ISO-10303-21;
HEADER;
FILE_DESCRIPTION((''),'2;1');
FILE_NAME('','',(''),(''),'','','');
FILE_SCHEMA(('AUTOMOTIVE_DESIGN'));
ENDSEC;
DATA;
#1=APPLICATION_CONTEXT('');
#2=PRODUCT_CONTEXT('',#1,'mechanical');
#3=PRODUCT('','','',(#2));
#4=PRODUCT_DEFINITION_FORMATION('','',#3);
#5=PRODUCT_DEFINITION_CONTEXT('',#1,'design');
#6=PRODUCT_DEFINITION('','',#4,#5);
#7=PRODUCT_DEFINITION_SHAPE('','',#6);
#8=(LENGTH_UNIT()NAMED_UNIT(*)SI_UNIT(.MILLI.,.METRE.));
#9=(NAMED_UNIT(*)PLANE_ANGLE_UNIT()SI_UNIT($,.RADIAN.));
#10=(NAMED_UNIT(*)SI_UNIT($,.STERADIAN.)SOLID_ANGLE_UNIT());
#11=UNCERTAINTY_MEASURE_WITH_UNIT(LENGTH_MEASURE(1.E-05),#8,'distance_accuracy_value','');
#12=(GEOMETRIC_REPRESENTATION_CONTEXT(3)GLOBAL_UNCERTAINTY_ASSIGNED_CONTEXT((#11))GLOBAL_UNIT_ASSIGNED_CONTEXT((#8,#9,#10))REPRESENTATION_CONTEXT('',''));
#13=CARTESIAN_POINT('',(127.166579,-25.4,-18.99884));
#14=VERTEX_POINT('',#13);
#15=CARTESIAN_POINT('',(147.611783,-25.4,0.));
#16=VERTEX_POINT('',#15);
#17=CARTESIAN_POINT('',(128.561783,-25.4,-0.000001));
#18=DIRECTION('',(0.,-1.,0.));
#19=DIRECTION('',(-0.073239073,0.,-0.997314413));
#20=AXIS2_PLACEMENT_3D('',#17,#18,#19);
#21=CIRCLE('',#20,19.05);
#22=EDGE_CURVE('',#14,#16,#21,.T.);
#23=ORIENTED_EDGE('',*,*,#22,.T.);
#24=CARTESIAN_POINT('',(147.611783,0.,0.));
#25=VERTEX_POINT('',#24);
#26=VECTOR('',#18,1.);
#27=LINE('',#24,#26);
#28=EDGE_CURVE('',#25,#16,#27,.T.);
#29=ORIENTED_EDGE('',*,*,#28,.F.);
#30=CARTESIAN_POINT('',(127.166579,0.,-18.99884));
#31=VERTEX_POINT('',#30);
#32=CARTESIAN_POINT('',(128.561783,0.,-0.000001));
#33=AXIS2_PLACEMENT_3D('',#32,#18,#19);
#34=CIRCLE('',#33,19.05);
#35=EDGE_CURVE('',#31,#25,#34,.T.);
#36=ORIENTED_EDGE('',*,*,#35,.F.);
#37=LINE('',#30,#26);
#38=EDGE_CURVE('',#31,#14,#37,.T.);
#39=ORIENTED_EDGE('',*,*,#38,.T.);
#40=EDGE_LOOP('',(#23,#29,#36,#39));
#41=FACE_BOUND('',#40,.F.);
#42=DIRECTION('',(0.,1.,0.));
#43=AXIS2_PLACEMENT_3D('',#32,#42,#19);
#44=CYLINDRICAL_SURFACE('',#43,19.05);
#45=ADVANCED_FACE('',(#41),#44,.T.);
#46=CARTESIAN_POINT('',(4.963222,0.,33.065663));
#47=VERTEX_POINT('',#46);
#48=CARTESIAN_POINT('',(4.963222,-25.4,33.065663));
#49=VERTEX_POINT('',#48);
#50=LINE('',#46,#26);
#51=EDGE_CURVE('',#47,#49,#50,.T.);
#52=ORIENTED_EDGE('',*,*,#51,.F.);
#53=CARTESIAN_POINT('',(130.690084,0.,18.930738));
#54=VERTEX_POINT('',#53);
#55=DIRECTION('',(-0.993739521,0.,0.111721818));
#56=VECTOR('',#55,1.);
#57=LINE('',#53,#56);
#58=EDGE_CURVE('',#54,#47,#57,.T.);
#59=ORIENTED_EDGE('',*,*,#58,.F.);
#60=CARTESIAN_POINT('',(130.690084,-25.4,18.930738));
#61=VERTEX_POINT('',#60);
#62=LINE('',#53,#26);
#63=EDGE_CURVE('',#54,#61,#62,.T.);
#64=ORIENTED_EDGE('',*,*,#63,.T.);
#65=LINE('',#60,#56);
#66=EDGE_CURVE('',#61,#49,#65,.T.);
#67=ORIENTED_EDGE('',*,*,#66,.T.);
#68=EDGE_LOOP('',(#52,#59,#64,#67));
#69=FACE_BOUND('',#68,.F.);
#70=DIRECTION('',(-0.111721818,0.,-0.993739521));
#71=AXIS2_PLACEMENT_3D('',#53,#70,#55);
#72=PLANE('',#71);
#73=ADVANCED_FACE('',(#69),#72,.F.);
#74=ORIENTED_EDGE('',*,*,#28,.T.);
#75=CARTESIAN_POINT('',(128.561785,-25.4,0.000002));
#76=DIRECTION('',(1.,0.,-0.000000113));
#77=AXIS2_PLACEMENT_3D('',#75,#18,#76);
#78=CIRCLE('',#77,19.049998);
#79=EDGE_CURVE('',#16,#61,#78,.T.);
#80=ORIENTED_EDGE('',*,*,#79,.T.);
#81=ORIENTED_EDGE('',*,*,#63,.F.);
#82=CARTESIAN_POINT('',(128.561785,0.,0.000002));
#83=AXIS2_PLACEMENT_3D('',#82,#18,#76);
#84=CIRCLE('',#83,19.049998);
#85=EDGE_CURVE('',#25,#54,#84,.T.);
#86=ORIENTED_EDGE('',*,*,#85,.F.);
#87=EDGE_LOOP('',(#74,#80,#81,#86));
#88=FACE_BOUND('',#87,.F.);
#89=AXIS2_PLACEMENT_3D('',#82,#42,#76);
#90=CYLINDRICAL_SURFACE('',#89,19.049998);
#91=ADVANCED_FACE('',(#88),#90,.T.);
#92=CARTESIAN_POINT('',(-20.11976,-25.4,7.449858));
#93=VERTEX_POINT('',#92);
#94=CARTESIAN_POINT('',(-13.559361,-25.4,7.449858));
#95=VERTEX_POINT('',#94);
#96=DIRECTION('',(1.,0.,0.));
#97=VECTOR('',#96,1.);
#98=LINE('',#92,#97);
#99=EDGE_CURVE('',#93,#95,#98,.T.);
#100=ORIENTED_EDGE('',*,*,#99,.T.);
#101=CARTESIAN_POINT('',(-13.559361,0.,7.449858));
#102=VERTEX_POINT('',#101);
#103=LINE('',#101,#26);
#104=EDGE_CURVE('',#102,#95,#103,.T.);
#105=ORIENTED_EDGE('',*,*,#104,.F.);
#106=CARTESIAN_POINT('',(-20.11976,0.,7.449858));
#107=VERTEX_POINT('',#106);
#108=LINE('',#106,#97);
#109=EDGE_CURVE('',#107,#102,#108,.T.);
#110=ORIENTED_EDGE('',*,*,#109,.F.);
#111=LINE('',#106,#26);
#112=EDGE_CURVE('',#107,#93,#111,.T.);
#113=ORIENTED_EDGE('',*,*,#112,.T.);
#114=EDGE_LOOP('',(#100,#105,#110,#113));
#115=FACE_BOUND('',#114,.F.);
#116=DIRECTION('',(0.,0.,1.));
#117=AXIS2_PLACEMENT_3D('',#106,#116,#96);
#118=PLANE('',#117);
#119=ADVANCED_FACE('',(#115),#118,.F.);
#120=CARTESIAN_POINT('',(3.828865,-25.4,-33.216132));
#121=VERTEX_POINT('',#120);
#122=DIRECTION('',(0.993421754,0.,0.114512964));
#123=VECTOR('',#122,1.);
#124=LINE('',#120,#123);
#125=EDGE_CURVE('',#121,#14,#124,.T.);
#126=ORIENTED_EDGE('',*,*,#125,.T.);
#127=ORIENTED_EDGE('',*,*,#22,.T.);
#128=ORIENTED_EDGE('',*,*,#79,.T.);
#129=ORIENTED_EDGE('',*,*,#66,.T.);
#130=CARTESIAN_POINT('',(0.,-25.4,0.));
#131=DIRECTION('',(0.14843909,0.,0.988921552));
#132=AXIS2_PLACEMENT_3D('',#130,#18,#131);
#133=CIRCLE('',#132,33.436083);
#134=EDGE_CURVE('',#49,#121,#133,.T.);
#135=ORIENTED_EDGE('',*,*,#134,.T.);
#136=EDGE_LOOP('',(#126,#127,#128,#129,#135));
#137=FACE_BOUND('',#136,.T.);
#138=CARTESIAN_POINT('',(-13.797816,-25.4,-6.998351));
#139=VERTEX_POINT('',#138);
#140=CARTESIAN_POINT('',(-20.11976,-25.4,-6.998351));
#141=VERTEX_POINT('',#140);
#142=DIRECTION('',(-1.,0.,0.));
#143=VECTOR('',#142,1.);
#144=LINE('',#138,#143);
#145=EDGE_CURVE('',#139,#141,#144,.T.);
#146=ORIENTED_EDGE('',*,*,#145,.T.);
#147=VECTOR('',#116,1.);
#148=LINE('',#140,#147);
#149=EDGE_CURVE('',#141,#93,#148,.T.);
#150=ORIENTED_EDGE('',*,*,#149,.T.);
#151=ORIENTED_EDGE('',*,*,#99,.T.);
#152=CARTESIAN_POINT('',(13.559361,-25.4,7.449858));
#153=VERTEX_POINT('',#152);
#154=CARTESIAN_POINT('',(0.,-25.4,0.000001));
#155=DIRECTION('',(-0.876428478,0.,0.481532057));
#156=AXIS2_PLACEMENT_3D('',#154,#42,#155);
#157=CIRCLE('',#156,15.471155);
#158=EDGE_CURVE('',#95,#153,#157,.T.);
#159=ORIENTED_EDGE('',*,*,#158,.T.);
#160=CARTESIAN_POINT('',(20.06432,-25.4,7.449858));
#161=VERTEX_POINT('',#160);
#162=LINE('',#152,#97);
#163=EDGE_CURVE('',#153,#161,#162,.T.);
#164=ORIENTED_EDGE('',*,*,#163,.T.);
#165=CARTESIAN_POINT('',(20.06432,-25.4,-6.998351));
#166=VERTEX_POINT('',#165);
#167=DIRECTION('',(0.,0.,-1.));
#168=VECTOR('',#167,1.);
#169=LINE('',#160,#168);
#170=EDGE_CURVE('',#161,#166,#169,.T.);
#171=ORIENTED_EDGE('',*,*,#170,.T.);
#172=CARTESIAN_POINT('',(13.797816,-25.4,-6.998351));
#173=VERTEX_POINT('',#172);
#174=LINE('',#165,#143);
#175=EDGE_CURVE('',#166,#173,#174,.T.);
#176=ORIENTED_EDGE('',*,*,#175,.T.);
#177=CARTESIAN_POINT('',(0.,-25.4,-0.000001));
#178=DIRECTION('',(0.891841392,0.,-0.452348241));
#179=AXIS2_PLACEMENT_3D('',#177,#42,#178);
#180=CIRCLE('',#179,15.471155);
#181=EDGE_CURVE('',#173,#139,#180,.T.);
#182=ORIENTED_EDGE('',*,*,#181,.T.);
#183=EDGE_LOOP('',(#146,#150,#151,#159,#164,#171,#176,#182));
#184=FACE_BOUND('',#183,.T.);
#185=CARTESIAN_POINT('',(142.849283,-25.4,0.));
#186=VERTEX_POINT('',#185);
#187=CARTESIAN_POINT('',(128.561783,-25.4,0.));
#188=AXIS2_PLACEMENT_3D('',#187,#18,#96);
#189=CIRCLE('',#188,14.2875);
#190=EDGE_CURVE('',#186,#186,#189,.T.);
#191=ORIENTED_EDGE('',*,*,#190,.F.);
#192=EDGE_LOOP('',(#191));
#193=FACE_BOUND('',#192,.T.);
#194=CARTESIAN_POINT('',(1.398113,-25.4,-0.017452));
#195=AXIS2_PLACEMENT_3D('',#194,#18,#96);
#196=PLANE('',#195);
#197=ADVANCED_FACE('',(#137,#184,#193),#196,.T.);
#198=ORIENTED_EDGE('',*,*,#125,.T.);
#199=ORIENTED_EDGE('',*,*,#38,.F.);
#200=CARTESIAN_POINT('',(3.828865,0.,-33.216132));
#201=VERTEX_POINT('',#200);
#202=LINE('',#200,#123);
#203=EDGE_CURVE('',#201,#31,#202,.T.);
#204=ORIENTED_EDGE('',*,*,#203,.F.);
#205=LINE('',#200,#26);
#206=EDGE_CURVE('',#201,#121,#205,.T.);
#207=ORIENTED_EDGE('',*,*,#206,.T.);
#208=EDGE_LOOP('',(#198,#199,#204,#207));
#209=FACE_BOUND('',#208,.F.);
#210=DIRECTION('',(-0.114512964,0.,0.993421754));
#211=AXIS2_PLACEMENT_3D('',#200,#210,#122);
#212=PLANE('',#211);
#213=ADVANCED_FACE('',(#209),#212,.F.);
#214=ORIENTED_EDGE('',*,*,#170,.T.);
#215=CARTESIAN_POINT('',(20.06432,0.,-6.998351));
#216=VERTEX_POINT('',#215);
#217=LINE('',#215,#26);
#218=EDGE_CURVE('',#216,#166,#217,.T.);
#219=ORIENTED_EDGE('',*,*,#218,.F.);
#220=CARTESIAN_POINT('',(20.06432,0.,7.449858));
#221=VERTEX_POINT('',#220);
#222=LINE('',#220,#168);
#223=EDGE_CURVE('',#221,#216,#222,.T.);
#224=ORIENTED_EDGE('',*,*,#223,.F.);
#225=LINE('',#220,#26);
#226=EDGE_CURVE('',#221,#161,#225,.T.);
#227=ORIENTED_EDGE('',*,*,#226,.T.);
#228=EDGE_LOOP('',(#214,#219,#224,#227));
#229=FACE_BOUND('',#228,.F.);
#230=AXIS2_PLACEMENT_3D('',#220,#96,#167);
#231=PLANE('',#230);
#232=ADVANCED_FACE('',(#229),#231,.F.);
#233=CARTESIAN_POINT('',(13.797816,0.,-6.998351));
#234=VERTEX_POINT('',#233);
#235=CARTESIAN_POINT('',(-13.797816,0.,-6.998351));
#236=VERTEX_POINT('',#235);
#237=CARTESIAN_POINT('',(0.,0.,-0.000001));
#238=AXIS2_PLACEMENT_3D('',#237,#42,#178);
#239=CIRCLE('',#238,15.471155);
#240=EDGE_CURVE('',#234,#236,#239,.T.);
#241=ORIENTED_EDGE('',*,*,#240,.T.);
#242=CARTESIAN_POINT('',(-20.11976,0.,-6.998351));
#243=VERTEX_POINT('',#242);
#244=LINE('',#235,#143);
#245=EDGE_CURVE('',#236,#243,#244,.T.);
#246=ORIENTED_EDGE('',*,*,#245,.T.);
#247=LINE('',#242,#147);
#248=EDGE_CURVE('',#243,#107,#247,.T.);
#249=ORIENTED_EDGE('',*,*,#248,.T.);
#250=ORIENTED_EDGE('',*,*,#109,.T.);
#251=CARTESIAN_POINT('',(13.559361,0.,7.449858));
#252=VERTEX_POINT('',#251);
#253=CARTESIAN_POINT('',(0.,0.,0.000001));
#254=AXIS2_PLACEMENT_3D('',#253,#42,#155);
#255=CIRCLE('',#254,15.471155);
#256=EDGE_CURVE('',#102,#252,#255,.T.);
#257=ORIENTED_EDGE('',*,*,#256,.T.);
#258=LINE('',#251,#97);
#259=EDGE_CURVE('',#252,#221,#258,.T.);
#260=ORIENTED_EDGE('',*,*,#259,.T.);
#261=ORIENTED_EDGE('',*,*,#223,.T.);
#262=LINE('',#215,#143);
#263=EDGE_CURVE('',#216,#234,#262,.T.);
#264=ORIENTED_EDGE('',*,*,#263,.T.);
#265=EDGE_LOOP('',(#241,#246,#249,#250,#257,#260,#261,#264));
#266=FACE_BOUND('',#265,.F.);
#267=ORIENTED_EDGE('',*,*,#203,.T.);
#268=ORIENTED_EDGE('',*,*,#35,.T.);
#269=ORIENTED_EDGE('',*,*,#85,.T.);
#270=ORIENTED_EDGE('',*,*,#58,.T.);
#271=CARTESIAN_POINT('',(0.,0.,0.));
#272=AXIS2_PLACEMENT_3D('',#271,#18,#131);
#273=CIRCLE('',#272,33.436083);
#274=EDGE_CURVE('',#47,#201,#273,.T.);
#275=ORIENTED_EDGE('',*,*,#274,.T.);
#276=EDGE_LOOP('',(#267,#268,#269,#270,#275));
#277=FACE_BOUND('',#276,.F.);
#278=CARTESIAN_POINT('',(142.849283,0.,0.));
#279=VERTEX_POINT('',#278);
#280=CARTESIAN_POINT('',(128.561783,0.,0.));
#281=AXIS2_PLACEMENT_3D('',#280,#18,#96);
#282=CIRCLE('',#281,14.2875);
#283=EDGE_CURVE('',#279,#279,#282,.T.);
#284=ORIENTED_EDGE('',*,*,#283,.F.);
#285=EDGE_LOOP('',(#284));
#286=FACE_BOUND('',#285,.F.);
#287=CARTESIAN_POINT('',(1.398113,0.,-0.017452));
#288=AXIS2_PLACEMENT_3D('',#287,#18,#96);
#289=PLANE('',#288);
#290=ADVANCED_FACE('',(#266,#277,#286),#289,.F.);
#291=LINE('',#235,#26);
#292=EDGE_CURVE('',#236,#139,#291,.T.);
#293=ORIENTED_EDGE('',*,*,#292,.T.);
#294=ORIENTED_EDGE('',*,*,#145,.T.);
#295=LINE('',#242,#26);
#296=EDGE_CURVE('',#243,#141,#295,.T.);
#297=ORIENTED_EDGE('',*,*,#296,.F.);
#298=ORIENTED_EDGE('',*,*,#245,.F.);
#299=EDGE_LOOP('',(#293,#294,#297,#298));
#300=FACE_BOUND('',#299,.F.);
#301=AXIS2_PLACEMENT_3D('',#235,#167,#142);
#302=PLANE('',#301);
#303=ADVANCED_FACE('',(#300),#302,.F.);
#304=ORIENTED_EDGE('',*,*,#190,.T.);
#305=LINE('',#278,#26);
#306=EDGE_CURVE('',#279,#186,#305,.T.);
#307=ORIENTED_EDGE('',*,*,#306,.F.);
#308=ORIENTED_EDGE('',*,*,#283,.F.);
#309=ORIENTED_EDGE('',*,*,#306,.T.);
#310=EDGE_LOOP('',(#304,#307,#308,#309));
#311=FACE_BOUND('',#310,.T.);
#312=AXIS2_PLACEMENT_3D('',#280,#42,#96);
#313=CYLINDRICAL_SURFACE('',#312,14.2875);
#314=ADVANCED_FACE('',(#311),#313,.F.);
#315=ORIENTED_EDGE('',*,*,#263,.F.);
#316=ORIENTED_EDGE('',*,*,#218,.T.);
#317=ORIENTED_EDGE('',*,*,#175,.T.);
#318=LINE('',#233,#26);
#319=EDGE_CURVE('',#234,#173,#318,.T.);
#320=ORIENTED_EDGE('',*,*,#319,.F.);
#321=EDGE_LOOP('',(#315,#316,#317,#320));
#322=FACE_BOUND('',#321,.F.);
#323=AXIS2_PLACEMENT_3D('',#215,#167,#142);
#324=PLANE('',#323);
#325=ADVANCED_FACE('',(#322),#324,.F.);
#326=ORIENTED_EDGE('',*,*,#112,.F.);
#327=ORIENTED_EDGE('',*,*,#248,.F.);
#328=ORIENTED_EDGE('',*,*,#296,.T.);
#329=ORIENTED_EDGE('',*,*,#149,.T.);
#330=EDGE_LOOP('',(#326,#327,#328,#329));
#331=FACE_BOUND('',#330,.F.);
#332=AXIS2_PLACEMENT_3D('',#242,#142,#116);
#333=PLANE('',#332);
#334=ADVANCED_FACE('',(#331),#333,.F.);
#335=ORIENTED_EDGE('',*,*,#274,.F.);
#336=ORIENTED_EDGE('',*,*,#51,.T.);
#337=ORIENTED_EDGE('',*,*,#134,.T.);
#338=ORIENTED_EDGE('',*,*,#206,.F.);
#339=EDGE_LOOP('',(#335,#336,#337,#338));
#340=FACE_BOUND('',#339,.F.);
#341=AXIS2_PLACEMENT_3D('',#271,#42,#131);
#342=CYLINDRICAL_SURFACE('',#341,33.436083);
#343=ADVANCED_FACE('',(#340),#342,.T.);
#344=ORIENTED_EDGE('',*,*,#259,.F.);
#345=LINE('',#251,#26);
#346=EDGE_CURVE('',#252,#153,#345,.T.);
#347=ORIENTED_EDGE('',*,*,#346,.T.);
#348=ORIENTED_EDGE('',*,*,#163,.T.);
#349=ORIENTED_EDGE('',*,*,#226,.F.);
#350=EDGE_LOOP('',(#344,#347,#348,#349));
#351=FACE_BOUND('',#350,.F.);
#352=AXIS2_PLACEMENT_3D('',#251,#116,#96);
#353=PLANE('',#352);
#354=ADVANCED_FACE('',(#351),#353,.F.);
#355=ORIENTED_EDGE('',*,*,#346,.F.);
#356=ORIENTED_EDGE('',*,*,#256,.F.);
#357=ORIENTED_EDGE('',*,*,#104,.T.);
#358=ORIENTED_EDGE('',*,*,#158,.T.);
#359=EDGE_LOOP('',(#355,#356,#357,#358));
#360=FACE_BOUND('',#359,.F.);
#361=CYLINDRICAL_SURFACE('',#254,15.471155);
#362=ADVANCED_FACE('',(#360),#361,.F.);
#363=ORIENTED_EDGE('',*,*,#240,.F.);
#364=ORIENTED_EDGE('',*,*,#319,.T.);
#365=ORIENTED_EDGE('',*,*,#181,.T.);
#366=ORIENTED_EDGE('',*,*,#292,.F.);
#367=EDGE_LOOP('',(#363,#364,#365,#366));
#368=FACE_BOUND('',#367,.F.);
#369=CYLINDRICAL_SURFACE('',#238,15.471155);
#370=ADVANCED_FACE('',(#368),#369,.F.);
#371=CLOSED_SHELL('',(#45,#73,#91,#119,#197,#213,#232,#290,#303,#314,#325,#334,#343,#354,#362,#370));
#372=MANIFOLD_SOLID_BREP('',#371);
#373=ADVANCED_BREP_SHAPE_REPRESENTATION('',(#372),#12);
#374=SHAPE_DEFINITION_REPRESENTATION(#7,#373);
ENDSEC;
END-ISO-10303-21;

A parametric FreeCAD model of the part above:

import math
import FreeCAD as App
import Part
import Sketcher
Q = App.Units.Quantity

doc = App.newDocument("Part")
body = doc.addObject("PartDesign::Body", "Body")

# Sketch on XZ plane
sketch1 = doc.addObject("Sketcher::SketchObject", "Sketch")
body.addObject(sketch1)
sketch1.AttachmentSupport = (doc.XZ_Plane, [""])
sketch1.MapMode = "FlatFace"
sketch1.addGeometry([
    Part.ArcOfCircle(Part.Circle(App.Vector(0, 0, 0), App.Vector(0, 0, 1), 33.436083), math.radians(81.46352), math.radians(276.575534)),  # 0
    Part.LineSegment(App.Vector(3.828865, -33.216132, 0), App.Vector(127.166579, -18.99884, 0)),  # 1
    Part.ArcOfCircle(Part.Circle(App.Vector(128.561783, -0.000001, 0), App.Vector(0, 0, 1), 19.05), math.radians(-94.20005), math.radians(0.000002)),  # 2
    Part.ArcOfCircle(Part.Circle(App.Vector(128.561785, 0.000002, 0), App.Vector(0, 0, 1), 19.049998), math.radians(-0.000006), math.radians(83.585424)),  # 3
    Part.LineSegment(App.Vector(130.690084, 18.930738, 0), App.Vector(4.963222, 33.065663, 0)),  # 4
    Part.LineSegment(App.Vector(-20.11976, 7.449858, 0), App.Vector(-13.559361, 7.449858, 0)),  # 5
    Part.ArcOfCircle(Part.Circle(App.Vector(0, 0.000001, 0), App.Vector(0, 0, 1), 15.471155), math.radians(28.785511), math.radians(151.214489)),  # 6
    Part.LineSegment(App.Vector(13.559361, 7.449858, 0), App.Vector(20.06432, 7.449858, 0)),  # 7
    Part.LineSegment(App.Vector(20.06432, 7.449858, 0), App.Vector(20.06432, -6.998351, 0)),  # 8
    Part.LineSegment(App.Vector(20.06432, -6.998351, 0), App.Vector(13.797816, -6.998351, 0)),  # 9
    Part.ArcOfCircle(Part.Circle(App.Vector(0, -0.000001, 0), App.Vector(0, 0, 1), 15.471155), math.radians(-153.105555), math.radians(-26.894445)),  # 10
    Part.LineSegment(App.Vector(-13.797816, -6.998351, 0), App.Vector(-20.11976, -6.998351, 0)),  # 11
    Part.LineSegment(App.Vector(-20.11976, -6.998351, 0), App.Vector(-20.11976, 7.449858, 0)),  # 12
    Part.Circle(App.Vector(128.561783, 0, 0), App.Vector(0, 0, 1), 14.2875),  # 13
], False)
sketch1.addConstraint([
    Sketcher.Constraint("Tangent", 0, 2, 1, 1),
    Sketcher.Constraint("Coincident", 1, 2, 2, 1),
    Sketcher.Constraint("Tangent", 2, 2, 3, 1),
    Sketcher.Constraint("Tangent", 3, 2, 4, 1),
    Sketcher.Constraint("Coincident", 4, 2, 0, 1),
    Sketcher.Constraint("Coincident", 5, 2, 6, 2),
    Sketcher.Constraint("Coincident", 6, 1, 7, 1),
    Sketcher.Constraint("Coincident", 7, 2, 8, 1),
    Sketcher.Constraint("Coincident", 8, 2, 9, 1),
    Sketcher.Constraint("Coincident", 9, 2, 10, 2),
    Sketcher.Constraint("Coincident", 10, 1, 11, 1),
    Sketcher.Constraint("Coincident", 11, 2, 12, 1),
    Sketcher.Constraint("Coincident", 12, 2, 5, 1),
    Sketcher.Constraint("Horizontal", 5),
    Sketcher.Constraint("Horizontal", 7),
    Sketcher.Constraint("Vertical", 8),
    Sketcher.Constraint("Horizontal", 9),
    Sketcher.Constraint("Horizontal", 11),
    Sketcher.Constraint("Vertical", 12),
    Sketcher.Constraint("Coincident", 0, 3, -1, 1),
    Sketcher.Constraint("Coincident", 6, 3, -1, 1),
    Sketcher.Constraint("Coincident", 10, 3, -1, 1),
    Sketcher.Constraint("Coincident", 13, 3, 2, 3),
    Sketcher.Constraint("Equal", 2, 3),
    Sketcher.Constraint("Equal", 6, 10),
    Sketcher.Constraint("PointOnObject", 2, 3, -1),
    Sketcher.Constraint("PointOnObject", 2, 2, -1),
    Sketcher.Constraint("Horizontal", 5, 2, 6, 1),
    Sketcher.Constraint("Horizontal", 9, 2, 10, 1),
    Sketcher.Constraint("Radius", 2, Q("0.75 in")),
    Sketcher.Constraint("Diameter", 13, Q("1.125 in")),
    Sketcher.Constraint("DistanceX", 5, 1, 5, 2, Q("6.560399 mm")),
    Sketcher.Constraint("Radius", 0, Q("33.436083 mm")),
    Sketcher.Constraint("Radius", 6, Q("15.471155 mm")),
    Sketcher.Constraint("DistanceX", 7, 1, 7, 2, Q("6.504959 mm")),
    Sketcher.Constraint("DistanceY", 8, 2, 8, 1, Q("14.448209 mm")),
    Sketcher.Constraint("Distance", 4, Q("126.518931 mm")),
    Sketcher.Constraint("DistanceX", 9, 2, 9, 1, Q("6.266504 mm")),
    Sketcher.Constraint("DistanceX", -1, 1, 1, 2, Q("127.166579 mm")),
    Sketcher.Constraint("DistanceY", 1, 2, -1, 1, Q("18.99884 mm")),
])
pad1 = doc.addObject("PartDesign::Pad", "Pad")
body.addObject(pad1)
pad1.Profile = sketch1
pad1.Length = Q("1 in")

doc.recompute()
